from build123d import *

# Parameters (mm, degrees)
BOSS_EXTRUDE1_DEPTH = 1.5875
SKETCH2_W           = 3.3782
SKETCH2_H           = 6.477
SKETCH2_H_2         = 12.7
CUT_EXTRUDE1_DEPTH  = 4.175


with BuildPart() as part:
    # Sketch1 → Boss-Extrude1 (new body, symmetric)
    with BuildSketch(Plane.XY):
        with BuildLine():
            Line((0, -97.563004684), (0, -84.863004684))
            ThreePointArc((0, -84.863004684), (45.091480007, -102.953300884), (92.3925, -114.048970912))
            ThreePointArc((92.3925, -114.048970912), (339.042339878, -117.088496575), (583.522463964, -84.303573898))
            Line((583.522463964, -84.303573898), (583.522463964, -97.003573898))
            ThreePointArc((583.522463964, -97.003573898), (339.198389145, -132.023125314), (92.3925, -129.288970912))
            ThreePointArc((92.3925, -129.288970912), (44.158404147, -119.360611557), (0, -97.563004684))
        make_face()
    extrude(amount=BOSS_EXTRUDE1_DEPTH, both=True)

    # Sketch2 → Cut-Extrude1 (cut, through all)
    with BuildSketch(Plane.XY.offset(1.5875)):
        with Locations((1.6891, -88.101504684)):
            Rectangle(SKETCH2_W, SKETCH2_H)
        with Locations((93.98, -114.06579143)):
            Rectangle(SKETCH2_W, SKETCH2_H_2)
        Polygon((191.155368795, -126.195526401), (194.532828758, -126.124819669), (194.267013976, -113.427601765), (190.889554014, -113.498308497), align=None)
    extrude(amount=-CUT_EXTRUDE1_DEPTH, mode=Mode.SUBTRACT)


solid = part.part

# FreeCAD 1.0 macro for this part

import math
import FreeCAD as App
import Part
import Sketcher

V = App.Vector
Q = App.Units.Quantity


def add_polygon(sketch, points):
    """Adds a closed chain of lines whose ends are joined by coincident constraints."""
    first, n = sketch.GeometryCount, len(points)
    for a, b in zip(points, points[1:] + points[:1]):
        sketch.addGeometry(Part.LineSegment(App.Vector(*a, 0), App.Vector(*b, 0)), False)
    for i in range(n):
        sketch.addConstraint(Sketcher.Constraint("Coincident", first + i, 2, first + (i + 1) % n, 1))

doc = App.newDocument("Part")
params = doc.addObject("Spreadsheet::Sheet", "Params")
for row, (alias, value) in enumerate([
    ("sketch1_height", "0.5 in"),
    ("pad1_length", "0.125 in"),
    ("sketch2_height", "0.5 in"),
    ("sketch2_length", "0.5 in"),
    ("sketch2_width", "0.133 in"),
    ("sketch2_height2", "0.255 in"),
    ("sketch2_length2", "0.133 in"),
], start=1):
    params.set(f"A{row}", alias)
    params.set(f"B{row}", "=" + value)
    params.setAlias(f"B{row}", alias)

body = doc.addObject("PartDesign::Body", "Body")

# Sketch on XY plane
sketch1 = body.newObject("Sketcher::SketchObject", "Sketch")
sketch1.AttachmentSupport = (doc.getObject("XY_Plane"), [""])
sketch1.MapMode = "FlatFace"
sketch1.addGeometry(Part.LineSegment(V(0, -85, 0), V(0, -98, 0)), False)
sketch1.addGeometry(Part.ArcOfCircle(Part.Circle(V(107, 63, 0), V(0, 0, 1), 193), math.radians(-124), math.radians(-94)), False)
sketch1.addGeometry(Part.ArcOfCircle(Part.Circle(V(234, 1475, 0), V(0, 0, 1), 1610), math.radians(-95.03), math.radians(-77.45)), False)
sketch1.addGeometry(Part.LineSegment(V(584, -97, 0), V(584, -84, 0)), False)
sketch1.addGeometry(Part.ArcOfCircle(Part.Circle(V(237, 1575, 0), V(0, 0, 1), 1695), math.radians(-94.88), math.radians(-78.19)), False)
sketch1.addGeometry(Part.ArcOfCircle(Part.Circle(V(142, 204, 0), V(0, 0, 1), 322), math.radians(-116.19), math.radians(-98.87)), False)
sketch1.addConstraint(Sketcher.Constraint("Coincident", 0, 2, 1, 1))
sketch1.addConstraint(Sketcher.Constraint("Coincident", 1, 2, 2, 1))
sketch1.addConstraint(Sketcher.Constraint("Coincident", 2, 2, 3, 1))
sketch1.addConstraint(Sketcher.Constraint("Coincident", 3, 2, 4, 2))
sketch1.addConstraint(Sketcher.Constraint("Coincident", 4, 1, 5, 2))
sketch1.addConstraint(Sketcher.Constraint("Coincident", 5, 1, 0, 1))
sketch1.addConstraint(Sketcher.Constraint("Vertical", 0))
sketch1.addConstraint(Sketcher.Constraint("Vertical", 3))
sketch1.addConstraint(Sketcher.Constraint("PointOnObject", 0, 2, -2))
sketch1.addConstraint(Sketcher.Constraint("Vertical", 1, 2, 4, 1))
sketch1.addConstraint(Sketcher.Constraint("Equal", 0, 3))
sketch1.addConstraint(Sketcher.Constraint("DistanceY", 0, 2, 0, 1, Q("0.5 in")))
sketch1.addConstraint(Sketcher.Constraint("DistanceY", 1, 2, 4, 1, Q("0.6 in")))
sketch1.addConstraint(Sketcher.Constraint("Radius", 1, Q("193.24257 mm")))
sketch1.addConstraint(Sketcher.Constraint("Radius", 5, Q("321.799409 mm")))
sketch1.addConstraint(Sketcher.Constraint("DistanceX", -1, 1, 1, 2, Q("3.6375 in")))
sketch1.addConstraint(Sketcher.Constraint("Radius", 2, Q("1610.157642 mm")))
sketch1.addConstraint(Sketcher.Constraint("Radius", 4, Q("1695.325294 mm")))
sketch1.addConstraint(Sketcher.Constraint("DistanceX", -1, 1, 1, 3, Q("106.917579 mm")))
sketch1.addConstraint(Sketcher.Constraint("DistanceY", 1, 2, -1, 1, Q("129.288971 mm")))
sketch1.addConstraint(Sketcher.Constraint("DistanceX", 2, 3, 4, 3, Q("2.972921 mm")))
sketch1.addConstraint(Sketcher.Constraint("DistanceY", 5, 3, 2, 3, Q("1270.766642 mm")))
sketch1.setExpression("Constraints[11]", "Params.sketch1_height")
pad1 = body.newObject("PartDesign::Pad", "Pad")
pad1.Profile = sketch1
pad1.setExpression("Length", "Params.pad1_length")
pad1.Midplane = True

# Sketch on XY plane
sketch2 = body.newObject("Sketcher::SketchObject", "Sketch001")
sketch2.AttachmentSupport = (doc.getObject("XY_Plane"), [""])
sketch2.MapMode = "FlatFace"
sketch2.AttachmentOffset = App.Placement(V(0, 0, 0.0625 * 25.4), App.Rotation())
add_polygon(sketch2, [(0, -84.9), (0, -91.3), (3.4, -91.3), (3.4, -84.9)])  # lines 0-3
add_polygon(sketch2, [(92.3, -107.7), (92.3, -120.4), (95.7, -120.4), (95.7, -107.7)])  # lines 4-7
add_polygon(sketch2, [(191.2, -126.2), (194.5, -126.1), (194.3, -113.4), (190.9, -113.5)])  # lines 8-11
sketch2.addConstraint(Sketcher.Constraint("Vertical", 0))
sketch2.addConstraint(Sketcher.Constraint("Horizontal", 1))
sketch2.addConstraint(Sketcher.Constraint("Vertical", 2))
sketch2.addConstraint(Sketcher.Constraint("Horizontal", 3))
sketch2.addConstraint(Sketcher.Constraint("Vertical", 4))
sketch2.addConstraint(Sketcher.Constraint("Horizontal", 5))
sketch2.addConstraint(Sketcher.Constraint("Vertical", 6))
sketch2.addConstraint(Sketcher.Constraint("Horizontal", 7))
sketch2.addConstraint(Sketcher.Constraint("PointOnObject", 0, 2, -2))
sketch2.addConstraint(Sketcher.Constraint("Perpendicular", 8, 9))
sketch2.addConstraint(Sketcher.Constraint("Perpendicular", 9, 10))
sketch2.addConstraint(Sketcher.Constraint("Perpendicular", 10, 11))
sketch2.addConstraint(Sketcher.Constraint("Equal", 3, 5))
sketch2.addConstraint(Sketcher.Constraint("DistanceY", 4, 2, 4, 1, Q("0.5 in")))
sketch2.addConstraint(Sketcher.Constraint("Distance", 9, Q("0.5 in")))
sketch2.addConstraint(Sketcher.Constraint("DistanceX", 1, 1, 1, 2, Q("0.133 in")))
sketch2.addConstraint(Sketcher.Constraint("DistanceY", 0, 2, 0, 1, Q("0.255 in")))
sketch2.addConstraint(Sketcher.Constraint("Distance", 8, Q("0.133 in")))
sketch2.addConstraint(Sketcher.Constraint("DistanceX", -1, 1, 4, 2, Q("3.6335 in")))
sketch2.addConstraint(Sketcher.Constraint("DistanceY", 9, 2, -1, 1, Q("113.427602 mm")))
sketch2.addConstraint(Sketcher.Constraint("DistanceY", 4, 2, -1, 1, Q("120.415791 mm")))
sketch2.addConstraint(Sketcher.Constraint("DistanceX", -1, 1, 8, 2, Q("194.532829 mm")))
sketch2.addConstraint(Sketcher.Constraint("DistanceY", 8, 2, -1, 1, Q("126.12482 mm")))
sketch2.addConstraint(Sketcher.Constraint("DistanceY", 0, 2, -1, 1, Q("91.340005 mm")))
sketch2.setExpression("Constraints[25]", "Params.sketch2_height")
sketch2.setExpression("Constraints[26]", "Params.sketch2_length")
sketch2.setExpression("Constraints[27]", "Params.sketch2_width")
sketch2.setExpression("Constraints[28]", "Params.sketch2_height2")
sketch2.setExpression("Constraints[29]", "Params.sketch2_length2")
pocket1 = body.newObject("PartDesign::Pocket", "Pocket")
pocket1.Profile = sketch2
pocket1.Type = "ThroughAll"

doc.recompute()
